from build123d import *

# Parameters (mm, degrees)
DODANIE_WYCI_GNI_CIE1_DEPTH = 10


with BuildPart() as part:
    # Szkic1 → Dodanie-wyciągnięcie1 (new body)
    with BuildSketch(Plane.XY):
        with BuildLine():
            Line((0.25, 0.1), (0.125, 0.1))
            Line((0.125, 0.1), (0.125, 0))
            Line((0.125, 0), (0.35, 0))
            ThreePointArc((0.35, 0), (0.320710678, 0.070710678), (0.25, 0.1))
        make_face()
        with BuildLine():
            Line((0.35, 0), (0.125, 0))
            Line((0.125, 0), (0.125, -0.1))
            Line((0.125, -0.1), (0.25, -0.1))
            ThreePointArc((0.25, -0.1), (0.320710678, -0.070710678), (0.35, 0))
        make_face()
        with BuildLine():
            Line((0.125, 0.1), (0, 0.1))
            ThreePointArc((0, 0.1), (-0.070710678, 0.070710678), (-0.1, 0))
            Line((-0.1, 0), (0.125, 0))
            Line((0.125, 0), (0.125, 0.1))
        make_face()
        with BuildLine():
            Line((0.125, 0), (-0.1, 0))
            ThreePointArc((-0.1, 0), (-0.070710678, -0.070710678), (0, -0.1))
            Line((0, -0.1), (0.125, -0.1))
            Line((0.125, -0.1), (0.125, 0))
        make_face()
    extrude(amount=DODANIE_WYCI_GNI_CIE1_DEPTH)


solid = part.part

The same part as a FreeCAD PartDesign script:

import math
import FreeCAD as App
import Part
import Sketcher

doc = App.newDocument("Part")
body = doc.addObject("PartDesign::Body", "Body")

sketch1 = body.newObject("Sketcher::SketchObject", "Sketch")
sketch1.AttachmentSupport = (doc.getObject("XY_Plane"), [""])
sketch1.MapMode = "FlatFace"
sketch1.addGeometry(Part.LineSegment(App.Vector(0.25, 0.1, 0), App.Vector(0, 0.1, 0)), False)
sketch1.addGeometry(Part.ArcOfCircle(Part.Circle(App.Vector(0, 0, 0), App.Vector(0, 0, 1), 0.1), math.radians(90), math.radians(180)), False)
sketch1.addGeometry(Part.ArcOfCircle(Part.Circle(App.Vector(0, 0, 0), App.Vector(0, 0, 1), 0.1), math.radians(180), math.radians(270)), False)
sketch1.addGeometry(Part.LineSegment(App.Vector(0, -0.1, 0), App.Vector(0.25, -0.1, 0)), False)
sketch1.addGeometry(Part.ArcOfCircle(Part.Circle(App.Vector(0.25, 0, 0), App.Vector(0, 0, 1), 0.1), math.radians(-90), math.radians(0)), False)
sketch1.addGeometry(Part.ArcOfCircle(Part.Circle(App.Vector(0.25, 0, 0), App.Vector(0, 0, 1), 0.1), math.radians(0), math.radians(90)), False)
sketch1.addConstraint(Sketcher.Constraint("Tangent", 0, 2, 1, 1))
sketch1.addConstraint(Sketcher.Constraint("Tangent", 1, 2, 2, 1))
sketch1.addConstraint(Sketcher.Constraint("Tangent", 2, 2, 3, 1))
sketch1.addConstraint(Sketcher.Constraint("Tangent", 3, 2, 4, 1))
sketch1.addConstraint(Sketcher.Constraint("Tangent", 4, 2, 5, 1))
sketch1.addConstraint(Sketcher.Constraint("Tangent", 5, 2, 0, 1))
sketch1.addConstraint(Sketcher.Constraint("Horizontal", 0))
sketch1.addConstraint(Sketcher.Constraint("Horizontal", 3))
sketch1.addConstraint(Sketcher.Constraint("Coincident", 1, 3, -1, 1))
sketch1.addConstraint(Sketcher.Constraint("Equal", 1, 2))
sketch1.addConstraint(Sketcher.Constraint("Equal", 2, 4))
sketch1.addConstraint(Sketcher.Constraint("PointOnObject", 1, 2, -1))
sketch1.addConstraint(Sketcher.Constraint("PointOnObject", 4, 2, -1))
sketch1.addConstraint(Sketcher.Constraint("Radius", 1, 0.1))
sketch1.addConstraint(Sketcher.Constraint("DistanceX", 0, 2, 0, 1, 0.25))
pad1 = body.newObject("PartDesign::Pad", "Pad")
pad1.Profile = sketch1
pad1.Length = 10

doc.recompute()
